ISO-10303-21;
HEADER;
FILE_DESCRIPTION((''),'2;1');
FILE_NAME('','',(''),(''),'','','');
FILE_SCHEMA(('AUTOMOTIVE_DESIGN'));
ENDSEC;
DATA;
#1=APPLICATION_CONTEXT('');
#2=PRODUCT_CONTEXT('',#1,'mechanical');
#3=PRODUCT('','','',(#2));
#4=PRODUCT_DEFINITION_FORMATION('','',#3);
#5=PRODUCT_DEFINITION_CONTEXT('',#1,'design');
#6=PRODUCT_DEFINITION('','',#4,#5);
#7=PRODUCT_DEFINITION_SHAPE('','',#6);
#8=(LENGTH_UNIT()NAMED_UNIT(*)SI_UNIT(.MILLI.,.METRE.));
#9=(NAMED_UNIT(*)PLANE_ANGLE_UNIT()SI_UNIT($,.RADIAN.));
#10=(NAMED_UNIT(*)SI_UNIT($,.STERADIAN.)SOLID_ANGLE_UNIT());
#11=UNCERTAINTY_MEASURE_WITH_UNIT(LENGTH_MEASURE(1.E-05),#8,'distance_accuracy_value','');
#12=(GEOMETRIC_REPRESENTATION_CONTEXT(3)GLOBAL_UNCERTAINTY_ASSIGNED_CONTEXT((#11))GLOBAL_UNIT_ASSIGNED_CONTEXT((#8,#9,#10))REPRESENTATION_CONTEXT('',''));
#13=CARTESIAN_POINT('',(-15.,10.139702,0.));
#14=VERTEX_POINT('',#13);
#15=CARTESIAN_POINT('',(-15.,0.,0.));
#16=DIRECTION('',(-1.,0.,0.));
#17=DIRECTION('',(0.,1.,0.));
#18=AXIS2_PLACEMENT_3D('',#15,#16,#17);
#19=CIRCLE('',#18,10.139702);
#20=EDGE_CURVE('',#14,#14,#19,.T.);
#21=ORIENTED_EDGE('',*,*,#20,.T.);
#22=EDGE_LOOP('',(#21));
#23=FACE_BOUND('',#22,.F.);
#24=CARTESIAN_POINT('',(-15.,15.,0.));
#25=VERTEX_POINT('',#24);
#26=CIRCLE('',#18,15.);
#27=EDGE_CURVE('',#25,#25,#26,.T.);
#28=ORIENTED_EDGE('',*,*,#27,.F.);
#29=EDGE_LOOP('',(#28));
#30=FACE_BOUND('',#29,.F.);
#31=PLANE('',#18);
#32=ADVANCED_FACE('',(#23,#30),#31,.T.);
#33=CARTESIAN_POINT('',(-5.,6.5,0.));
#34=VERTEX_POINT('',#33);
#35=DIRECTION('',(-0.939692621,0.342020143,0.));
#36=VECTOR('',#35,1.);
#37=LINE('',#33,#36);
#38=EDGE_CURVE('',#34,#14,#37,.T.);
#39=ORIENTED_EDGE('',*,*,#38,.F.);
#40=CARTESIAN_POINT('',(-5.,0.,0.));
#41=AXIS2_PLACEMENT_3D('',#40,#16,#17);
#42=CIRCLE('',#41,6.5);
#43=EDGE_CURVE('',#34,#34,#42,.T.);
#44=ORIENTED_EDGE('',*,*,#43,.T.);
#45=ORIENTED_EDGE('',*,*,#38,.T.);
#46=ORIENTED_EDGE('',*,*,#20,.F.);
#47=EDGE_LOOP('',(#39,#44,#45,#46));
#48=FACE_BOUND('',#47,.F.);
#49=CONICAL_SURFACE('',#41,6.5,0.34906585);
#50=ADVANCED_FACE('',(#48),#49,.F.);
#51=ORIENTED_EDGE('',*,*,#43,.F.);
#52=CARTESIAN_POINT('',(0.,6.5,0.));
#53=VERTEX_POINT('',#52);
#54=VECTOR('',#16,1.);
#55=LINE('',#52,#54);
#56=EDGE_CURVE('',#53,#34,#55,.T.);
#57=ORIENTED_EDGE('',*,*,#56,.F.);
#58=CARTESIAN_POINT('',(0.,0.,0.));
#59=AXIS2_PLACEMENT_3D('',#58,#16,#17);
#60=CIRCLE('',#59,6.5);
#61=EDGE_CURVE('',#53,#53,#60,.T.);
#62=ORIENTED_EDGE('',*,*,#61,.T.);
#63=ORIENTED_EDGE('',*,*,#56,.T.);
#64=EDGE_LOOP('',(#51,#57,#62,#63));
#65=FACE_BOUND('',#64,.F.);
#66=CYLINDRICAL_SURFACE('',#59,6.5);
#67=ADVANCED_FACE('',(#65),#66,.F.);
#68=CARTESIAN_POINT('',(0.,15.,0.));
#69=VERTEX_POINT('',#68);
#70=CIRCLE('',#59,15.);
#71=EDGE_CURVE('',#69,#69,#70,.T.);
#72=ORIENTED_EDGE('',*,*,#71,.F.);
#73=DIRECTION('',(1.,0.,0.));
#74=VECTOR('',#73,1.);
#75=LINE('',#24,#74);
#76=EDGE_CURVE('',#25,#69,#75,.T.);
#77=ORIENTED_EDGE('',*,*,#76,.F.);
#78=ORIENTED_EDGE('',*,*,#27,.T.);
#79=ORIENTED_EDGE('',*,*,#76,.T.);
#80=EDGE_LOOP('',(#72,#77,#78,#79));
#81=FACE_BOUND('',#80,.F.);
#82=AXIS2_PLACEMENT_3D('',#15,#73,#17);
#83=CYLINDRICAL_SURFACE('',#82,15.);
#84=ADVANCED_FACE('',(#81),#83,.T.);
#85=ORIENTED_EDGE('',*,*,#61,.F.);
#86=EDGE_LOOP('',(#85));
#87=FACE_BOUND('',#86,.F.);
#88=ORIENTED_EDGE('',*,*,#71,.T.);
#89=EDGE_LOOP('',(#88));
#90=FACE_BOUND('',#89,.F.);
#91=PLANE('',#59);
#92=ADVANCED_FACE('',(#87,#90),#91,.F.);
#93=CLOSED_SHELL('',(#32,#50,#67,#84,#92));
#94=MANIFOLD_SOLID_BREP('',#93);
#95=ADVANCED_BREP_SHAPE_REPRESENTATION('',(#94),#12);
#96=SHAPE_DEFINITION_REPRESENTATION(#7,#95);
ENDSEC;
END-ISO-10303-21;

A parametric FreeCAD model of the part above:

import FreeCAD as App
import Part
import Sketcher
Q = App.Units.Quantity


def add_polygon(sketch, points):
    """Adds a closed chain of lines whose ends are joined by coincident constraints."""
    first, n = sketch.GeometryCount, len(points)
    for a, b in zip(points, points[1:] + points[:1]):
        sketch.addGeometry(Part.LineSegment(App.Vector(*a, 0), App.Vector(*b, 0)), False)
    for i in range(n):
        sketch.addConstraint(Sketcher.Constraint("Coincident", first + i, 2, first + (i + 1) % n, 1))

doc = App.newDocument("Part")
params = doc.addObject("Spreadsheet::Sheet", "Params")
for row, (alias, value) in enumerate([
    ("sketch1_width", "5 mm"),
    ("sketch1_width2", "15 mm"),
    ("sketch1_height", "8.5 mm"),
    ("revolution_angle", "360 deg"),
], start=1):
    params.set(f"A{row}", alias)
    params.set(f"B{row}", "=" + value)
    params.setAlias(f"B{row}", alias)

body = doc.addObject("PartDesign::Body", "Body")

# Sketch on XY plane
sketch1 = doc.addObject("Sketcher::SketchObject", "Sketch")
body.addObject(sketch1)
sketch1.AttachmentSupport = (doc.XY_Plane, [""])
sketch1.MapMode = "FlatFace"
add_polygon(sketch1, [(-5, 6.5), (0, 6.5), (0, 15), (-15, 15), (-15, 10.1)])  # lines 0-4
sketch1.addConstraint([
    Sketcher.Constraint("Horizontal", 0),
    Sketcher.Constraint("Vertical", 1),
    Sketcher.Constraint("Horizontal", 2),
    Sketcher.Constraint("Vertical", 3),
    Sketcher.Constraint("PointOnObject", 0, 2, -2),
    Sketcher.Constraint("DistanceX", 0, 1, 0, 2, 5.0),
    Sketcher.Constraint("DistanceX", 2, 2, 2, 1, 15.0),
    Sketcher.Constraint("Angle", 4, Q("-20 deg")),
    Sketcher.Constraint("DistanceY", 1, 1, 1, 2, 8.5),
    Sketcher.Constraint("DistanceY", -1, 1, 1, 2, 15.0),
])
sketch1.setExpression("Constraints[10]", "Params.sketch1_width")
sketch1.setExpression("Constraints[11]", "Params.sketch1_width2")
sketch1.setExpression("Constraints[13]", "Params.sketch1_height")
revolution = doc.addObject("PartDesign::Revolution", "Revolution")
body.addObject(revolution)
revolution.Profile = sketch1
revolution.ReferenceAxis = (sketch1, ["H_Axis"])
revolution.setExpression("Angle", "Params.revolution_angle")

doc.recompute()
